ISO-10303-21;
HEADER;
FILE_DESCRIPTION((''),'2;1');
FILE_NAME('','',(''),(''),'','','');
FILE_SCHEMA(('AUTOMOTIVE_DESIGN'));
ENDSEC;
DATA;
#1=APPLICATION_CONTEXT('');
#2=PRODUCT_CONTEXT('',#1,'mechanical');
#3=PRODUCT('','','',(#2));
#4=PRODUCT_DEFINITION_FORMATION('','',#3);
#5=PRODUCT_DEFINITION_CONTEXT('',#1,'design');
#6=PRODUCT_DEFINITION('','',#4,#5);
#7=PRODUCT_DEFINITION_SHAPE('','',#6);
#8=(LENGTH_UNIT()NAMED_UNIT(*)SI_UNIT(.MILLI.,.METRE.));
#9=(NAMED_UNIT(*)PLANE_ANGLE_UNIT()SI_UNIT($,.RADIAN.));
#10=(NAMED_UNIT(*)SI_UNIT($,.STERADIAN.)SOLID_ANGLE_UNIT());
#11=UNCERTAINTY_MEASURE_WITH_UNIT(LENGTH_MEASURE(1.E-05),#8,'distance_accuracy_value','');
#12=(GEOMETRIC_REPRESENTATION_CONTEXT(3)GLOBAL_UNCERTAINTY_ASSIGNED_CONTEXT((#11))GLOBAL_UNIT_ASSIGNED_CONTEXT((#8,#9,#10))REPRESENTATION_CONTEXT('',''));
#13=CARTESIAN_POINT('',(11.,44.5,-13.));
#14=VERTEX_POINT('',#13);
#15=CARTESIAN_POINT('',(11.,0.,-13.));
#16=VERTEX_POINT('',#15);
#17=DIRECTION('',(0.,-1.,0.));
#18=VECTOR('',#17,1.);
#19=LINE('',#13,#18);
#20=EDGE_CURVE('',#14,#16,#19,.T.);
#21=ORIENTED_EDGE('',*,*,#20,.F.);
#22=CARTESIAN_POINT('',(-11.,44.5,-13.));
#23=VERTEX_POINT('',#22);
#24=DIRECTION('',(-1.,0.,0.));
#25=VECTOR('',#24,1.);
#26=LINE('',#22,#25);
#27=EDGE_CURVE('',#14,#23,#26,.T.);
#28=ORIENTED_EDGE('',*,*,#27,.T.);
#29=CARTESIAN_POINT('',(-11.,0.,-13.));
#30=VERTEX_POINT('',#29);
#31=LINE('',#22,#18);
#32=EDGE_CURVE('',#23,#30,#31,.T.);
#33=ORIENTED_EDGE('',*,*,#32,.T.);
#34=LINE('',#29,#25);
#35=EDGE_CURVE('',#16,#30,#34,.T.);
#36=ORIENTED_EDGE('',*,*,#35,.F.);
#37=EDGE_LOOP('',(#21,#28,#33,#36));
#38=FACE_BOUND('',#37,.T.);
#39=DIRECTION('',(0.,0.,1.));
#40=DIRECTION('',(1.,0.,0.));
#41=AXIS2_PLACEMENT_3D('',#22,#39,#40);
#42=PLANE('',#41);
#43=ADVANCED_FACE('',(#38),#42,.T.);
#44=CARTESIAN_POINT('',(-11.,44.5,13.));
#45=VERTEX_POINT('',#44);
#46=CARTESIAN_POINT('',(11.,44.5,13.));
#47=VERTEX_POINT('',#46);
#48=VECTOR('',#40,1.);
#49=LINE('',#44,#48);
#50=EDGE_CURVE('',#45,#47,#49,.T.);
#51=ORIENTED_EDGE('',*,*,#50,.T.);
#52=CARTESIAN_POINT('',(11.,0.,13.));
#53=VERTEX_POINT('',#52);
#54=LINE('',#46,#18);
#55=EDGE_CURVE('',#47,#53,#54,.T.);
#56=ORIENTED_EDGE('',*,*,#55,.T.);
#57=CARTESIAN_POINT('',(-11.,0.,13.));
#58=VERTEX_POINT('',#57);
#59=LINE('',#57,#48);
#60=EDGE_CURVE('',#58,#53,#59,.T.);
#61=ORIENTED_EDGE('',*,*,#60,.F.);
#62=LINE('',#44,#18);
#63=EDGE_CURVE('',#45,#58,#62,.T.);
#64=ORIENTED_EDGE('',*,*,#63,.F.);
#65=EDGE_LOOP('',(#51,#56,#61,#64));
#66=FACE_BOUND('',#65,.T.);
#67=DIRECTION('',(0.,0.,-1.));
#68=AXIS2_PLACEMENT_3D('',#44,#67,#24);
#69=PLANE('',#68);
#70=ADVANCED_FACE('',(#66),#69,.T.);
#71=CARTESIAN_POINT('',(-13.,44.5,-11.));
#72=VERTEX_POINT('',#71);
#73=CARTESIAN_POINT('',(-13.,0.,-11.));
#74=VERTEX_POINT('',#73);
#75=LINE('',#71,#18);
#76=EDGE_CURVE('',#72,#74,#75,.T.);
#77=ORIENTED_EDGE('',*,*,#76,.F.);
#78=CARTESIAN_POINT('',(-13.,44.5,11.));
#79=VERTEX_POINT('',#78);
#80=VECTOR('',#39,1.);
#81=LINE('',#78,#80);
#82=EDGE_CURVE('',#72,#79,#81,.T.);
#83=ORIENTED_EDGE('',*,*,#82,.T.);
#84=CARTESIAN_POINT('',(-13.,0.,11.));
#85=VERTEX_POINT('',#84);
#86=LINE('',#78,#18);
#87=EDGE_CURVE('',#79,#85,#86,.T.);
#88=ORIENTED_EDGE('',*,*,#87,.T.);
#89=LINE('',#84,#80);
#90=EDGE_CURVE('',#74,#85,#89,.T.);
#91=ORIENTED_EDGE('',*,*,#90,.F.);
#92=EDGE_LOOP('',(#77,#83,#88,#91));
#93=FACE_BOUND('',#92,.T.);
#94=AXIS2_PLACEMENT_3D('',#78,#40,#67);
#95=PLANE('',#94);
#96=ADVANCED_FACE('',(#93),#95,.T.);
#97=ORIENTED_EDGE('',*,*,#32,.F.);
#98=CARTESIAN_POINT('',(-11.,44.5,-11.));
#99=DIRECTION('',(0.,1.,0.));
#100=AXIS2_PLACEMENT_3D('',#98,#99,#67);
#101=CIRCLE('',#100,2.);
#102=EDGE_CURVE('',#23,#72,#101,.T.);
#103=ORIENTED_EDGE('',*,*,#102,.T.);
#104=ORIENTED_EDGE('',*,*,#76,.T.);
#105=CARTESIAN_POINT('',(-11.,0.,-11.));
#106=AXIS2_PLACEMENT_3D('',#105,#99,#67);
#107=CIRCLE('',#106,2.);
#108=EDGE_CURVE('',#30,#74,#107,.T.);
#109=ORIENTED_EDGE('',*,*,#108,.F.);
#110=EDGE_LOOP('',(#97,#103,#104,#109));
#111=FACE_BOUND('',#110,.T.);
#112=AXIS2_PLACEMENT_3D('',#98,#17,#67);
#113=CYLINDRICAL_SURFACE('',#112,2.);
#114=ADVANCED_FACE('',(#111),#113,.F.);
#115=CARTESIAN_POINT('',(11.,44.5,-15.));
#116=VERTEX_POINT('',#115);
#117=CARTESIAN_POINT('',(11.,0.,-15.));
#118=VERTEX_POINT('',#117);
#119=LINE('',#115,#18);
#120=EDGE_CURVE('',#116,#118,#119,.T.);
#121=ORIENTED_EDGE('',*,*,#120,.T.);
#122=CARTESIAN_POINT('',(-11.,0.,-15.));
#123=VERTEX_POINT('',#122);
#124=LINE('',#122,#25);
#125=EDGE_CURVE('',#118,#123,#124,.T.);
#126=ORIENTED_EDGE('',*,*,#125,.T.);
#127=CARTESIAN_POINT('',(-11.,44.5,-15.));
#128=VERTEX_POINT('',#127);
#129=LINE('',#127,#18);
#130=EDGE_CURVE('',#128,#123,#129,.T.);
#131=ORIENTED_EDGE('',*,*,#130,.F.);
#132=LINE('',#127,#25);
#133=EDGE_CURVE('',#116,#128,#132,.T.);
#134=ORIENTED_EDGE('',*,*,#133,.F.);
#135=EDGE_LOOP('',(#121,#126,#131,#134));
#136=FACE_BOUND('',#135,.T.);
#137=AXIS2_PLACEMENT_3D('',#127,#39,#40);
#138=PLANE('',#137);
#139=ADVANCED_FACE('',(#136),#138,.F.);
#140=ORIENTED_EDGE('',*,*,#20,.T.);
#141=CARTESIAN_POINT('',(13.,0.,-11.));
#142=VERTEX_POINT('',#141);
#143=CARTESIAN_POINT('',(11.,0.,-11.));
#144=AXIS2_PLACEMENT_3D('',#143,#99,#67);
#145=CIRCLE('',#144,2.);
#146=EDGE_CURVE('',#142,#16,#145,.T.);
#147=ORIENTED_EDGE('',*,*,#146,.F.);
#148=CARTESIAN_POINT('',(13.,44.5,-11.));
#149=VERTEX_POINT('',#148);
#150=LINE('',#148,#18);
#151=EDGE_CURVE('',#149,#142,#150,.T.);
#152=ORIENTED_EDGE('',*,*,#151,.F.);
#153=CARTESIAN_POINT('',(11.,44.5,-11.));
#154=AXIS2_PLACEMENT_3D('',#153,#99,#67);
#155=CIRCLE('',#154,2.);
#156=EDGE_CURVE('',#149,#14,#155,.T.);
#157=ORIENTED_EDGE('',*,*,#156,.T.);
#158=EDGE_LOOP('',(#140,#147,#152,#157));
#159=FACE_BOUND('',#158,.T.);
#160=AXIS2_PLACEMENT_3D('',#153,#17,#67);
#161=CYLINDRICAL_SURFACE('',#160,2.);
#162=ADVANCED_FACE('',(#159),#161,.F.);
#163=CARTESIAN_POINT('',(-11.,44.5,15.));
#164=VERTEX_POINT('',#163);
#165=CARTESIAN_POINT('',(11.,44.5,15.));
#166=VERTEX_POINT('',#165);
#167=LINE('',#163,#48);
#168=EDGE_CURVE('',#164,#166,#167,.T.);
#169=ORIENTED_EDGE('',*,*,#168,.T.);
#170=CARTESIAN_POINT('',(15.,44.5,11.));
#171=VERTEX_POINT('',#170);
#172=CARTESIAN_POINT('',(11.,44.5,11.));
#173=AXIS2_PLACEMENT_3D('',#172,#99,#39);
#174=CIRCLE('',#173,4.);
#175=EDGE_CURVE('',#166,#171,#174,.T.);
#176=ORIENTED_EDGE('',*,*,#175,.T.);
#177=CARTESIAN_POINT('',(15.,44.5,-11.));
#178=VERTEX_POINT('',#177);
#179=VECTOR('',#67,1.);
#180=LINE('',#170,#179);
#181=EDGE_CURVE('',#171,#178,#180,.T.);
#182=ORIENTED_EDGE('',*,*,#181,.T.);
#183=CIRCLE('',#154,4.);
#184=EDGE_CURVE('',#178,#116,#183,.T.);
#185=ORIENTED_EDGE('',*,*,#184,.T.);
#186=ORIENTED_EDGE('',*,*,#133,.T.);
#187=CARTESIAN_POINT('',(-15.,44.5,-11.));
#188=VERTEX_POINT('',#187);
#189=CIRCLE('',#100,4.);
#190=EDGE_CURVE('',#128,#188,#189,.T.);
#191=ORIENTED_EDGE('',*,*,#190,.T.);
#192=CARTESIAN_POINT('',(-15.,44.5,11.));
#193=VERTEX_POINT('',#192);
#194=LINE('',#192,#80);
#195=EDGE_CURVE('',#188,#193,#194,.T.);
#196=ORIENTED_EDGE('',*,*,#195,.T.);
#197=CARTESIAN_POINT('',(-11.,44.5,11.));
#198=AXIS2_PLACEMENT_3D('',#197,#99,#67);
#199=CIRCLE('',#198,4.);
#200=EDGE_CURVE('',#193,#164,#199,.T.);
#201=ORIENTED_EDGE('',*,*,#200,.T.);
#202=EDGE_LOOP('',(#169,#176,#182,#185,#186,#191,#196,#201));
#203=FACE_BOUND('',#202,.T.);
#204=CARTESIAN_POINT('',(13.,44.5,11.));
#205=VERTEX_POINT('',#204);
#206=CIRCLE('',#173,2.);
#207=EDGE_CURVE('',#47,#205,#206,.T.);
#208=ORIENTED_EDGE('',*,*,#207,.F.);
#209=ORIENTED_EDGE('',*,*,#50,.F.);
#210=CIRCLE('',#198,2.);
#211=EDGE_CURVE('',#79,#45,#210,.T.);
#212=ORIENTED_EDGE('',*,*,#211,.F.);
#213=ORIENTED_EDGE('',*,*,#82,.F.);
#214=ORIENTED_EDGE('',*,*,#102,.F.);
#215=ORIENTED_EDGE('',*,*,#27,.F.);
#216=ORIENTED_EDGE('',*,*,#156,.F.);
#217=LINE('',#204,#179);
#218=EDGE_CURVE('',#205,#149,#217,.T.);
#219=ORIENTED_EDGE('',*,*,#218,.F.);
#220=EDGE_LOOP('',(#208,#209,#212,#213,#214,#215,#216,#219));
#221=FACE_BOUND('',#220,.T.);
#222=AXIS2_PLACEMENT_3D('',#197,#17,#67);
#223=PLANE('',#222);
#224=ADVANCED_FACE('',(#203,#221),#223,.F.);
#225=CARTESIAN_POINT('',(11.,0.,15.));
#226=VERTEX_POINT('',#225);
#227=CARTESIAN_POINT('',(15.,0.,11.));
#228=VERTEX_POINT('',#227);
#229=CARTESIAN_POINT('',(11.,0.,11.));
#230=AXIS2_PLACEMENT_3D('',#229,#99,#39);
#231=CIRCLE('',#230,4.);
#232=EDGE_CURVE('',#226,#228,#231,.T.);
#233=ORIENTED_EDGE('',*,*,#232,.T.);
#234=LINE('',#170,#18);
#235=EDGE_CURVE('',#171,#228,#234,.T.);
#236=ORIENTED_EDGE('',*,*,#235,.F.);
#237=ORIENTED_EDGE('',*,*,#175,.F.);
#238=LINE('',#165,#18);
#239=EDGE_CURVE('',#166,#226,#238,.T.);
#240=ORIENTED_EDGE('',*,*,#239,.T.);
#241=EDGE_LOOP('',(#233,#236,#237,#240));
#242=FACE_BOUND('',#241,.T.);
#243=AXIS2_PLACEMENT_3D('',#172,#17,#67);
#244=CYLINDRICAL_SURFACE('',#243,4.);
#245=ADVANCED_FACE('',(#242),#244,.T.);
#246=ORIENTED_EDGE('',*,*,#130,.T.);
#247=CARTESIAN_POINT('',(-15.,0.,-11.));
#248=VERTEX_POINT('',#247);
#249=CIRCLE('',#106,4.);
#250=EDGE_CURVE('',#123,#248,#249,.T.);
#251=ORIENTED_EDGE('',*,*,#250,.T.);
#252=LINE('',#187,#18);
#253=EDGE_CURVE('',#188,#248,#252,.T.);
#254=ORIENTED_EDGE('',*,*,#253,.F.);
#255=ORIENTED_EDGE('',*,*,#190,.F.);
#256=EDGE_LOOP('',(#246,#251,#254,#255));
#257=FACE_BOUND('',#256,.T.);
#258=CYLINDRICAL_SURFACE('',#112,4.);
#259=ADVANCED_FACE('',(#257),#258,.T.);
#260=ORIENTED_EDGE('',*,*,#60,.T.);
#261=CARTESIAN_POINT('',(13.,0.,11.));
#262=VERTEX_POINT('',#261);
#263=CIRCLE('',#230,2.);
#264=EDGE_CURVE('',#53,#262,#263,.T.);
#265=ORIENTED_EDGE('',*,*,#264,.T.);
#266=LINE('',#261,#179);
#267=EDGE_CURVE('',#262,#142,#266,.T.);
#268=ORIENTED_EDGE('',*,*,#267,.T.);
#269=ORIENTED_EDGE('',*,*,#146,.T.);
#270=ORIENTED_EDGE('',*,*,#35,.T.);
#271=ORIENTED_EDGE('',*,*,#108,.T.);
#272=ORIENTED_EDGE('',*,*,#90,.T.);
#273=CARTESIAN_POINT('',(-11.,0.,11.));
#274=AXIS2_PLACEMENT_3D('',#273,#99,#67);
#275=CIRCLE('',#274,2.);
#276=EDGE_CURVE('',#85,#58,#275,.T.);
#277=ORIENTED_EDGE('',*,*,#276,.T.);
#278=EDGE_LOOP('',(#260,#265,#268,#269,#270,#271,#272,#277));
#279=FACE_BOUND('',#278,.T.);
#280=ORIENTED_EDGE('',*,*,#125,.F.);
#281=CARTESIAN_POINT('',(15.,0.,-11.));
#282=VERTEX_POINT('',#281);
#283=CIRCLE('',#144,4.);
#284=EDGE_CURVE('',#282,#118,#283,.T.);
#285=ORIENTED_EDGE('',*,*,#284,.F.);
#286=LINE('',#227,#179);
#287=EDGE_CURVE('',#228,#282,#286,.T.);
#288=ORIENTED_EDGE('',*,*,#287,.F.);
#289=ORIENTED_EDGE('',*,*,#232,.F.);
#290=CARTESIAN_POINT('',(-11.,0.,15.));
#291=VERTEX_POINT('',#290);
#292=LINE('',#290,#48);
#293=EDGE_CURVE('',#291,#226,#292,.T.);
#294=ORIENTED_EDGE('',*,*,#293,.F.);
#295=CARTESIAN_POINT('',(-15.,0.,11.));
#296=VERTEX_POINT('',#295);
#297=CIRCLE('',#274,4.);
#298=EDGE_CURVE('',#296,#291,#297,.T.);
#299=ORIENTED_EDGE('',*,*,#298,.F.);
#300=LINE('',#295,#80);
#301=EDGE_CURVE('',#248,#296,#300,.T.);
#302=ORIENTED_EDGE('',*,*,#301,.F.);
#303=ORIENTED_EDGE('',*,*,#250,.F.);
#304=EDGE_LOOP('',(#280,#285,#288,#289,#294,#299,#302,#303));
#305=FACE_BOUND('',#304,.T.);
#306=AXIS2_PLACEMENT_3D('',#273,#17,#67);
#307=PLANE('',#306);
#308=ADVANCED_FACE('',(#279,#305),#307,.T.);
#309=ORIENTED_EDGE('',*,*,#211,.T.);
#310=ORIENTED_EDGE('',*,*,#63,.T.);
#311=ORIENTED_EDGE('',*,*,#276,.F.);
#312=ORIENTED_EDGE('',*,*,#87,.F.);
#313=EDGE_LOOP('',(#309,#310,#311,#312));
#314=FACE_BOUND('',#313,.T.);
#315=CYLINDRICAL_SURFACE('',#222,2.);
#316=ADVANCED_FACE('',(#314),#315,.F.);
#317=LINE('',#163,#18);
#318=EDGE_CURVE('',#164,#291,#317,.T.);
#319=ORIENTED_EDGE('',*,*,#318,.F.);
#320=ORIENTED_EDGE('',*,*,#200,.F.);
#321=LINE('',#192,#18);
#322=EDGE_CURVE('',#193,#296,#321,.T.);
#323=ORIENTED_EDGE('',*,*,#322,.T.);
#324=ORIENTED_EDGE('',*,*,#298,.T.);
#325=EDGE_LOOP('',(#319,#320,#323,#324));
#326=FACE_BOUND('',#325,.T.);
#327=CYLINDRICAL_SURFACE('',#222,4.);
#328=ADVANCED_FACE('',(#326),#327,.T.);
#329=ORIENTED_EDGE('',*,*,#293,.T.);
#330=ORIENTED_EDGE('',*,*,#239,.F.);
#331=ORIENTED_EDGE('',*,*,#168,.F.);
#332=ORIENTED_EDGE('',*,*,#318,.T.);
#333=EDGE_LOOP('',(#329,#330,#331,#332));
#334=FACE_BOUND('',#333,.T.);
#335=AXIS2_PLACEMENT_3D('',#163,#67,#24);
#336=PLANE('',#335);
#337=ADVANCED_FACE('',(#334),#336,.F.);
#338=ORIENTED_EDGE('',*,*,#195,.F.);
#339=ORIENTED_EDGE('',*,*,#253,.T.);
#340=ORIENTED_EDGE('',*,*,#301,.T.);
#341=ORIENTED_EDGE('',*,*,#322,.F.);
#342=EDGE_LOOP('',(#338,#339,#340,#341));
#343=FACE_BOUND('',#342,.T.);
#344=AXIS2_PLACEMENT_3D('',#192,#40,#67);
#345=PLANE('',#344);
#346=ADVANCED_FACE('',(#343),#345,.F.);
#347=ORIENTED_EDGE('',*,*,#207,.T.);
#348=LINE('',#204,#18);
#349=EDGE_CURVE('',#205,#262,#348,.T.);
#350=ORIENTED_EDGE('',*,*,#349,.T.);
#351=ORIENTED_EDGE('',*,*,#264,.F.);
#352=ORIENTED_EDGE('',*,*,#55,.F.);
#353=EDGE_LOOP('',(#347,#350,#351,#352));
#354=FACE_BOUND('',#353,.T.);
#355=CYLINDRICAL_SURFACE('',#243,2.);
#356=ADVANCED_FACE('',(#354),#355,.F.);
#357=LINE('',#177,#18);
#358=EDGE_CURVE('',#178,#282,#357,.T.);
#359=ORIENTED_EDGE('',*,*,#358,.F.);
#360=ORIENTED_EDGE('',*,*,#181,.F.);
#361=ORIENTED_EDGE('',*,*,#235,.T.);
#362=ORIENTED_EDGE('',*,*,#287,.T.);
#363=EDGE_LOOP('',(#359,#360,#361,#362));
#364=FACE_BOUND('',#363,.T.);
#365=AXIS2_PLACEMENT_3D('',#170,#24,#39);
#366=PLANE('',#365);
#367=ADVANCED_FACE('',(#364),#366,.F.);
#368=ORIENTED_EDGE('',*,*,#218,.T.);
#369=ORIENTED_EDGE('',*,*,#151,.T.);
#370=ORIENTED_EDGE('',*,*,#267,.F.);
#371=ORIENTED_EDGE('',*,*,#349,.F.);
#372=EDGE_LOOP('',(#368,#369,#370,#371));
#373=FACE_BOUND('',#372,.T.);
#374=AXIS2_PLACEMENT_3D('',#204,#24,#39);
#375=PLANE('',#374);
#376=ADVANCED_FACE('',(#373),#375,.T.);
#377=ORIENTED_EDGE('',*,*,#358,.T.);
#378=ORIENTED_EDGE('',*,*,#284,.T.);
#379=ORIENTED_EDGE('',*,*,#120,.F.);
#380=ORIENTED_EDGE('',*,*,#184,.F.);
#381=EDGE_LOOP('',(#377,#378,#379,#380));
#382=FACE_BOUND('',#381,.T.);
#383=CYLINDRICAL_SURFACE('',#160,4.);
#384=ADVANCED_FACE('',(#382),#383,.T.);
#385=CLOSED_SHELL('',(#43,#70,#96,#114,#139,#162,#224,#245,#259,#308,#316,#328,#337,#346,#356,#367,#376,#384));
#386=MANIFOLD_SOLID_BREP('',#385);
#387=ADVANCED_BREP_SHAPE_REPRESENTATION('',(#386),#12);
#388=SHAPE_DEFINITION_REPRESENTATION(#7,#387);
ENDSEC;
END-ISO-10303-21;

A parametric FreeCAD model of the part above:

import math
import FreeCAD as App
import Part
import Sketcher

V = App.Vector

doc = App.newDocument("Part")
body = doc.addObject("PartDesign::Body", "Body")

# Sketch on XZ plane
sketch1 = body.newObject("Sketcher::SketchObject", "Sketch")
sketch1.AttachmentSupport = (doc.getObject("XZ_Plane"), [""])
sketch1.MapMode = "FlatFace"
sketch1.addGeometry(Part.LineSegment(V(-11, 15, 0), V(11, 15, 0)), False)
sketch1.addGeometry(Part.ArcOfCircle(Part.Circle(V(11, 11, 0), V(0, 0, 1), 4), math.radians(0), math.radians(90)), False)
sketch1.addGeometry(Part.LineSegment(V(15, 11, 0), V(15, -11, 0)), False)
sketch1.addGeometry(Part.ArcOfCircle(Part.Circle(V(11, -11, 0), V(0, 0, 1), 4), math.radians(-90), math.radians(0)), False)
sketch1.addGeometry(Part.LineSegment(V(11, -15, 0), V(-11, -15, 0)), False)
sketch1.addGeometry(Part.ArcOfCircle(Part.Circle(V(-11, -11, 0), V(0, 0, 1), 4), math.radians(180), math.radians(270)), False)
sketch1.addGeometry(Part.LineSegment(V(-15, -11, 0), V(-15, 11, 0)), False)
sketch1.addGeometry(Part.ArcOfCircle(Part.Circle(V(-11, 11, 0), V(0, 0, 1), 4), math.radians(90), math.radians(180)), False)
sketch1.addGeometry(Part.LineSegment(V(11, 13, 0), V(-11, 13, 0)), False)
sketch1.addGeometry(Part.ArcOfCircle(Part.Circle(V(-11, 11, 0), V(0, 0, 1), 2), math.radians(90), math.radians(180)), False)
sketch1.addGeometry(Part.LineSegment(V(-13, 11, 0), V(-13, -11, 0)), False)
sketch1.addGeometry(Part.ArcOfCircle(Part.Circle(V(-11, -11, 0), V(0, 0, 1), 2), math.radians(-180), math.radians(-90)), False)
sketch1.addGeometry(Part.LineSegment(V(-11, -13, 0), V(11, -13, 0)), False)
sketch1.addGeometry(Part.ArcOfCircle(Part.Circle(V(11, -11, 0), V(0, 0, 1), 2), math.radians(-90), math.radians(0)), False)
sketch1.addGeometry(Part.LineSegment(V(13, -11, 0), V(13, 11, 0)), False)
sketch1.addGeometry(Part.ArcOfCircle(Part.Circle(V(11, 11, 0), V(0, 0, 1), 2), math.radians(0), math.radians(90)), False)
sketch1.addConstraint(Sketcher.Constraint("Tangent", 0, 2, 1, 2))
sketch1.addConstraint(Sketcher.Constraint("Tangent", 1, 1, 2, 1))
sketch1.addConstraint(Sketcher.Constraint("Tangent", 2, 2, 3, 2))
sketch1.addConstraint(Sketcher.Constraint("Tangent", 3, 1, 4, 1))
sketch1.addConstraint(Sketcher.Constraint("Tangent", 4, 2, 5, 2))
sketch1.addConstraint(Sketcher.Constraint("Tangent", 5, 1, 6, 1))
sketch1.addConstraint(Sketcher.Constraint("Tangent", 6, 2, 7, 2))
sketch1.addConstraint(Sketcher.Constraint("Tangent", 7, 1, 0, 1))
sketch1.addConstraint(Sketcher.Constraint("Tangent", 8, 2, 9, 1))
sketch1.addConstraint(Sketcher.Constraint("Tangent", 9, 2, 10, 1))
sketch1.addConstraint(Sketcher.Constraint("Tangent", 10, 2, 11, 1))
sketch1.addConstraint(Sketcher.Constraint("Tangent", 11, 2, 12, 1))
sketch1.addConstraint(Sketcher.Constraint("Tangent", 12, 2, 13, 1))
sketch1.addConstraint(Sketcher.Constraint("Tangent", 13, 2, 14, 1))
sketch1.addConstraint(Sketcher.Constraint("Tangent", 14, 2, 15, 1))
sketch1.addConstraint(Sketcher.Constraint("Tangent", 15, 2, 8, 1))
sketch1.addConstraint(Sketcher.Constraint("Horizontal", 0))
sketch1.addConstraint(Sketcher.Constraint("Vertical", 2))
sketch1.addConstraint(Sketcher.Constraint("Horizontal", 4))
sketch1.addConstraint(Sketcher.Constraint("Vertical", 6))
sketch1.addConstraint(Sketcher.Constraint("Horizontal", 8))
sketch1.addConstraint(Sketcher.Constraint("Vertical", 10))
sketch1.addConstraint(Sketcher.Constraint("Horizontal", 12))
sketch1.addConstraint(Sketcher.Constraint("Vertical", 14))
sketch1.addConstraint(Sketcher.Constraint("Coincident", 9, 3, 7, 3))
sketch1.addConstraint(Sketcher.Constraint("Coincident", 11, 3, 5, 3))
sketch1.addConstraint(Sketcher.Constraint("Coincident", 13, 3, 3, 3))
sketch1.addConstraint(Sketcher.Constraint("Equal", 1, 3))
sketch1.addConstraint(Sketcher.Constraint("Equal", 3, 5))
sketch1.addConstraint(Sketcher.Constraint("Equal", 5, 7))
sketch1.addConstraint(Sketcher.Constraint("Equal", 13, 15))
sketch1.addConstraint(Sketcher.Constraint("Symmetric", 1, 3, 5, 3, -1, 1))
sketch1.addConstraint(Sketcher.Constraint("Equal", 12, 2))
sketch1.addConstraint(Sketcher.Constraint("Radius", 1, 4.0))
sketch1.addConstraint(Sketcher.Constraint("Radius", 9, 2.0))
sketch1.addConstraint(Sketcher.Constraint("DistanceX", 0, 1, 0, 2, 22.0))
pad1 = body.newObject("PartDesign::Pad", "Pad")
pad1.Profile = sketch1
pad1.Length = 44.5
pad1.Reversed = True

doc.recompute()
